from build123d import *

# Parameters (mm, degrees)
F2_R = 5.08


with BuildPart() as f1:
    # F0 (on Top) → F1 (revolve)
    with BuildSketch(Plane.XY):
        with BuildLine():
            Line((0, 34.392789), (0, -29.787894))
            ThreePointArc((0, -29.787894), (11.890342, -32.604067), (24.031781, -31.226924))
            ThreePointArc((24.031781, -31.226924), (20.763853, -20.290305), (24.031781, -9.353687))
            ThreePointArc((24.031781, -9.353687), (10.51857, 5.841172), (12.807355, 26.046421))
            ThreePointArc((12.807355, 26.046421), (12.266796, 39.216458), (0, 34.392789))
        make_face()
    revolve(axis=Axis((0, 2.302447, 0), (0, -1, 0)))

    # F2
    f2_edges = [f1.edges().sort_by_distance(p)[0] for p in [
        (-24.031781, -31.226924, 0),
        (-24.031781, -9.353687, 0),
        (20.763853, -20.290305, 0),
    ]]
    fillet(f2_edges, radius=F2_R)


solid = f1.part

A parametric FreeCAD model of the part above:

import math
import FreeCAD as App
import Part
import Sketcher


def edges_at(feature, points):
    """Names of the edges that pass closest to the given points."""
    edges = feature.Shape.Edges
    near = lambda p: min(range(len(edges)), key=lambda i: edges[i].distToShape(Part.Vertex(*p))[0])
    return sorted({f"Edge{near(p) + 1}" for p in points})

doc = App.newDocument("Part")
params = doc.addObject("Spreadsheet::Sheet", "Params")
for row, (alias, value) in enumerate([
    ("revolution_angle", "360 deg"),
    ("fillet_radius", "0.2 in"),
], start=1):
    params.set(f"A{row}", alias)
    params.set(f"B{row}", "=" + value)
    params.setAlias(f"B{row}", alias)

body = doc.addObject("PartDesign::Body", "Body")

sketch1 = body.newObject("Sketcher::SketchObject", "Sketch")
sketch1.AttachmentSupport = (doc.getObject("XY_Plane"), [""])
sketch1.MapMode = "FlatFace"
sketch1.addGeometry([
    Part.LineSegment(App.Vector(0, 34, 0), App.Vector(0, -30, 0)),
    Part.ArcOfCircle(Part.Circle(App.Vector(14, 3, 0), App.Vector(0, 0, 1), 36), math.radians(-113), math.radians(-74)),
    Part.ArcOfCircle(Part.Circle(App.Vector(41, -20, 0), App.Vector(0, 0, 1), 20), math.radians(147), math.radians(213)),
    Part.ArcOfCircle(Part.Circle(App.Vector(34, 13, 0), App.Vector(0, 0, 1), 25), math.radians(149), math.radians(246)),
    Part.ArcOfCircle(Part.Circle(App.Vector(8, 32, 0), App.Vector(0, 0, 1), 8), math.radians(-52), math.radians(166)),
], False)
sketch1.addConstraint([
    Sketcher.Constraint("Coincident", 0, 2, 1, 1),
    Sketcher.Constraint("Coincident", 1, 2, 2, 2),
    Sketcher.Constraint("Coincident", 2, 1, 3, 2),
    Sketcher.Constraint("Coincident", 3, 1, 4, 1),
    Sketcher.Constraint("Coincident", 4, 2, 0, 1),
    Sketcher.Constraint("Vertical", 0),
    Sketcher.Constraint("PointOnObject", 0, 2, -2),
    Sketcher.Constraint("Vertical", 1, 2, 2, 1),
    Sketcher.Constraint("Radius", 1, 35.543253),
    Sketcher.Constraint("Radius", 2, 19.934493),
    Sketcher.Constraint("Radius", 3, 24.943173),
    Sketcher.Constraint("Radius", 4, 8.089535),
    Sketcher.Constraint("DistanceY", 2, 3, 3, 3, 33.670399),
    Sketcher.Constraint("DistanceX", 4, 3, 3, 3, 26.4451),
    Sketcher.Constraint("DistanceY", 0, 2, 0, 1, 64.180683),
    Sketcher.Constraint("DistanceX", -1, 1, 1, 2, 24.031781),
    Sketcher.Constraint("DistanceY", -1, 1, 3, 1, 26.046421),
    Sketcher.Constraint("DistanceY", -1, 1, 4, 2, 34.392789),
    Sketcher.Constraint("DistanceX", 1, 3, 2, 3, 26.68347),
])
revolution = body.newObject("PartDesign::Revolution", "Revolution")
revolution.Profile = sketch1
revolution.ReferenceAxis = (sketch1, ["V_Axis"])
revolution.setExpression("Angle", "Params.revolution_angle")
doc.recompute()

fillet = body.newObject("PartDesign::Fillet", "Fillet")
fillet.Base = (revolution, edges_at(revolution, [(-24.032, -31.227, 0), (-24.032, -9.354, 0), (20.764, -20.29, 0)]))
fillet.setExpression("Radius", "Params.fillet_radius")

doc.recompute()
